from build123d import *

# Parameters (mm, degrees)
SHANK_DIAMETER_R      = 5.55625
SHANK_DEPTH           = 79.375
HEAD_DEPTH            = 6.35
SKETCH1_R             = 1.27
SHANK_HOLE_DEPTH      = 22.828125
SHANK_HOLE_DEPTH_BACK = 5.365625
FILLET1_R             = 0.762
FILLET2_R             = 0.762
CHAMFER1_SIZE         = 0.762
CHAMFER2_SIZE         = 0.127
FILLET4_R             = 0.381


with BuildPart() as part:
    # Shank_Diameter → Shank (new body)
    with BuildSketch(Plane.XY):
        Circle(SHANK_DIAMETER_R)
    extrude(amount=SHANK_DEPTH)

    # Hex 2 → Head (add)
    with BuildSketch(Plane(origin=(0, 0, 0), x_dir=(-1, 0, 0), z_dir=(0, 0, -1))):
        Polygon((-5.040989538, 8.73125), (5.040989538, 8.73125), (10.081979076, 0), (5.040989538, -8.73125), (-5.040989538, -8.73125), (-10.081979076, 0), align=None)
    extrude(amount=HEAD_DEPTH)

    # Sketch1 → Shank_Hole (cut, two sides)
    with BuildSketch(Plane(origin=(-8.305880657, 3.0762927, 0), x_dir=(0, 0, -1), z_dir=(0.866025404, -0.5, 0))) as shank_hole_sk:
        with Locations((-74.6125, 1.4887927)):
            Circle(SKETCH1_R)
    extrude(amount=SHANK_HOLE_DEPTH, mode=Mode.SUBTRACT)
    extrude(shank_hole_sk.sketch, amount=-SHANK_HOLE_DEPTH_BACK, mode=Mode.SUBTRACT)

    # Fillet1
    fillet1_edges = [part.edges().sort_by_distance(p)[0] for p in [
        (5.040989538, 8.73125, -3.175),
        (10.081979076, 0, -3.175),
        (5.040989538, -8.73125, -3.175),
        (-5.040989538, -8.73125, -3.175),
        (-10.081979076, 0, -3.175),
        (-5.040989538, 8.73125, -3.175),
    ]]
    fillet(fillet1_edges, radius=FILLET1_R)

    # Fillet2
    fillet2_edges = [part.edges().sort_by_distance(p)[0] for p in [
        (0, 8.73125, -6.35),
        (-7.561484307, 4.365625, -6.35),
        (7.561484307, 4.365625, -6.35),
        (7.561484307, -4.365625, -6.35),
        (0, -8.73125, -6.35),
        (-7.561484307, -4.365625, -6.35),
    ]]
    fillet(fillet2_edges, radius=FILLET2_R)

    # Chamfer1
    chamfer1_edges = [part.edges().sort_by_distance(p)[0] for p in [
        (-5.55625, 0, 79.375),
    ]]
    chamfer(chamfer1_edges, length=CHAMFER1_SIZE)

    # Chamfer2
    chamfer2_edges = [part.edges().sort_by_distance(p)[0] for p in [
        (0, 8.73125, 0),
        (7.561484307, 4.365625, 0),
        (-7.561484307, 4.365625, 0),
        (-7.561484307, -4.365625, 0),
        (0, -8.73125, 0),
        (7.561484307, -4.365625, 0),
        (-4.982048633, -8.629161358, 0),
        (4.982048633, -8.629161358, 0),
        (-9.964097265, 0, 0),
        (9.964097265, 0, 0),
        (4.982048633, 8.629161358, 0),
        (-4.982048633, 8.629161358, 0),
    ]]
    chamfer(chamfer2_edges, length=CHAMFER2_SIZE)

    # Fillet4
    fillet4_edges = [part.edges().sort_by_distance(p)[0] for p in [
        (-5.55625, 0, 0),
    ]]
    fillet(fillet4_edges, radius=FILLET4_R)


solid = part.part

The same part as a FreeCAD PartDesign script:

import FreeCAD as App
import Part
import Sketcher
from FreeCAD import Vector
Q = App.Units.Quantity


def edges_at(feature, points):
    """Names of the edges that pass closest to the given points."""
    edges = feature.Shape.Edges
    near = lambda p: min(range(len(edges)), key=lambda i: edges[i].distToShape(Part.Vertex(*p))[0])
    return sorted({f"Edge{near(p) + 1}" for p in points})


def add_polygon(sketch, points):
    """Adds a closed chain of lines whose ends are joined by coincident constraints."""
    first, n = sketch.GeometryCount, len(points)
    for a, b in zip(points, points[1:] + points[:1]):
        sketch.addGeometry(Part.LineSegment(App.Vector(*a, 0), App.Vector(*b, 0)), False)
    for i in range(n):
        sketch.addConstraint(Sketcher.Constraint("Coincident", first + i, 2, first + (i + 1) % n, 1))

doc = App.newDocument("Part")
body = doc.addObject("PartDesign::Body", "Body")

# Sketch on XY plane
sketch1 = doc.addObject("Sketcher::SketchObject", "Sketch")
body.addObject(sketch1)
sketch1.AttachmentSupport = (doc.XY_Plane, [""])
sketch1.MapMode = "FlatFace"
sketch1.addGeometry(Part.Circle(Vector(0, 0, 0), Vector(0, 0, 1), 5.55625), False)
sketch1.addConstraint(Sketcher.Constraint("Coincident", 0, 3, -1, 1))
sketch1.addConstraint(Sketcher.Constraint("Diameter", 0, Q("0.4375 in")))
pad1 = doc.addObject("PartDesign::Pad", "Pad")
body.addObject(pad1)
pad1.Profile = sketch1
pad1.Length = Q("3.125 in")

# Sketch on XY plane
sketch2 = doc.addObject("Sketcher::SketchObject", "Sketch001")
body.addObject(sketch2)
sketch2.AttachmentSupport = (doc.XY_Plane, [""])
sketch2.MapMode = "FlatFace"
add_polygon(sketch2, [(-5.04099, 8.73125), (5.04099, 8.73125), (10.081979, 0), (5.04099, -8.73125), (-5.04099, -8.73125), (-10.081979, 0)])  # lines 0-5
sketch2.addConstraint(Sketcher.Constraint("Horizontal", 0))
sketch2.addConstraint(Sketcher.Constraint("Horizontal", 3))
sketch2.addConstraint(Sketcher.Constraint("Symmetric", 0, 2, 3, 2, -1, 1))
sketch2.addConstraint(Sketcher.Constraint("Symmetric", 1, 2, 4, 2, -1, 1))
sketch2.addConstraint(Sketcher.Constraint("PointOnObject", 1, 2, -1))
sketch2.addConstraint(Sketcher.Constraint("Parallel", 2, 5))
sketch2.addConstraint(Sketcher.Constraint("Vertical", 0, 2, 2, 2))
sketch2.addConstraint(Sketcher.Constraint("Angle", 1, Q("-60 deg")))
sketch2.addConstraint(Sketcher.Constraint("DistanceY", -1, 1, 0, 2, Q("0.34375 in")))
sketch2.addConstraint(Sketcher.Constraint("DistanceX", 0, 1, 0, 2, Q("10.081979 mm")))
pad2 = doc.addObject("PartDesign::Pad", "Pad001")
body.addObject(pad2)
pad2.Profile = sketch2
pad2.Length = Q("0.25 in")
pad2.Reversed = True

# Sketch on an angled plane
sketch3 = doc.addObject("Sketcher::SketchObject", "Sketch002")
body.addObject(sketch3)
sketch3.Placement = App.Placement(Vector(-8.305881, 3.076293, 0), App.Rotation(Vector(0, 0, -1), Vector(0.5, 0.866025404, 0), Vector(0.866025404, -0.5, 0), "ZXY"))
sketch3.addGeometry(Part.Circle(Vector(-74.6125, 1.488793, 0), Vector(0, 0, 1), 1.27), False)
sketch3.addConstraint(Sketcher.Constraint("Diameter", 0, Q("0.1 in")))
sketch3.addConstraint(Sketcher.Constraint("DistanceX", 0, 3, -1, 1, Q("2.9375 in")))
sketch3.addConstraint(Sketcher.Constraint("DistanceY", -1, 1, 0, 3, Q("1.488793 mm")))
pocket1 = doc.addObject("PartDesign::Pocket", "Pocket")
body.addObject(pocket1)
pocket1.Profile = sketch3
pocket1.Type = "ThroughAll"
pocket1.Midplane = True
doc.recompute()

fillet = doc.addObject("PartDesign::Fillet", "Fillet")
body.addObject(fillet)
fillet.Base = (pocket1, edges_at(pocket1, [
    (5.041, 8.731, -3.175),
    (10.082, 0, -3.175),
    (5.041, -8.731, -3.175),
    (-5.041, -8.731, -3.175),
    (-10.082, 0, -3.175),
    (-5.041, 8.731, -3.175),
]))
fillet.Radius = Q("0.03 in")
doc.recompute()

fillet2 = doc.addObject("PartDesign::Fillet", "Fillet001")
body.addObject(fillet2)
fillet2.Base = (fillet, edges_at(fillet, [
    (0, 8.731, -6.35),
    (-7.561, 4.366, -6.35),
    (7.561, 4.366, -6.35),
    (7.561, -4.366, -6.35),
    (0, -8.731, -6.35),
    (-7.561, -4.366, -6.35),
]))
fillet2.Radius = Q("0.03 in")
doc.recompute()

chamfer = doc.addObject("PartDesign::Chamfer", "Chamfer")
body.addObject(chamfer)
chamfer.Base = (fillet2, edges_at(fillet2, [(-5.556, 0, 79.375)]))
chamfer.Size = Q("0.03 in")
doc.recompute()

chamfer2 = doc.addObject("PartDesign::Chamfer", "Chamfer001")
body.addObject(chamfer2)
chamfer2.Base = (chamfer, edges_at(chamfer, [
    (0, 8.731, 0),
    (7.561, 4.366, 0),
    (-7.561, 4.366, 0),
    (-7.561, -4.366, 0),
    (0, -8.731, 0),
    (7.561, -4.366, 0),
    (-4.982, -8.629, 0),
    (4.982, -8.629, 0),
    (-9.964, 0, 0),
    (9.964, 0, 0),
    (4.982, 8.629, 0),
    (-4.982, 8.629, 0),
]))
chamfer2.Size = Q("0.005 in")
doc.recompute()

fillet3 = doc.addObject("PartDesign::Fillet", "Fillet002")
body.addObject(fillet3)
fillet3.Base = (chamfer2, edges_at(chamfer2, [(-5.556, 0, 0)]))
fillet3.Radius = Q("0.015 in")

doc.recompute()
